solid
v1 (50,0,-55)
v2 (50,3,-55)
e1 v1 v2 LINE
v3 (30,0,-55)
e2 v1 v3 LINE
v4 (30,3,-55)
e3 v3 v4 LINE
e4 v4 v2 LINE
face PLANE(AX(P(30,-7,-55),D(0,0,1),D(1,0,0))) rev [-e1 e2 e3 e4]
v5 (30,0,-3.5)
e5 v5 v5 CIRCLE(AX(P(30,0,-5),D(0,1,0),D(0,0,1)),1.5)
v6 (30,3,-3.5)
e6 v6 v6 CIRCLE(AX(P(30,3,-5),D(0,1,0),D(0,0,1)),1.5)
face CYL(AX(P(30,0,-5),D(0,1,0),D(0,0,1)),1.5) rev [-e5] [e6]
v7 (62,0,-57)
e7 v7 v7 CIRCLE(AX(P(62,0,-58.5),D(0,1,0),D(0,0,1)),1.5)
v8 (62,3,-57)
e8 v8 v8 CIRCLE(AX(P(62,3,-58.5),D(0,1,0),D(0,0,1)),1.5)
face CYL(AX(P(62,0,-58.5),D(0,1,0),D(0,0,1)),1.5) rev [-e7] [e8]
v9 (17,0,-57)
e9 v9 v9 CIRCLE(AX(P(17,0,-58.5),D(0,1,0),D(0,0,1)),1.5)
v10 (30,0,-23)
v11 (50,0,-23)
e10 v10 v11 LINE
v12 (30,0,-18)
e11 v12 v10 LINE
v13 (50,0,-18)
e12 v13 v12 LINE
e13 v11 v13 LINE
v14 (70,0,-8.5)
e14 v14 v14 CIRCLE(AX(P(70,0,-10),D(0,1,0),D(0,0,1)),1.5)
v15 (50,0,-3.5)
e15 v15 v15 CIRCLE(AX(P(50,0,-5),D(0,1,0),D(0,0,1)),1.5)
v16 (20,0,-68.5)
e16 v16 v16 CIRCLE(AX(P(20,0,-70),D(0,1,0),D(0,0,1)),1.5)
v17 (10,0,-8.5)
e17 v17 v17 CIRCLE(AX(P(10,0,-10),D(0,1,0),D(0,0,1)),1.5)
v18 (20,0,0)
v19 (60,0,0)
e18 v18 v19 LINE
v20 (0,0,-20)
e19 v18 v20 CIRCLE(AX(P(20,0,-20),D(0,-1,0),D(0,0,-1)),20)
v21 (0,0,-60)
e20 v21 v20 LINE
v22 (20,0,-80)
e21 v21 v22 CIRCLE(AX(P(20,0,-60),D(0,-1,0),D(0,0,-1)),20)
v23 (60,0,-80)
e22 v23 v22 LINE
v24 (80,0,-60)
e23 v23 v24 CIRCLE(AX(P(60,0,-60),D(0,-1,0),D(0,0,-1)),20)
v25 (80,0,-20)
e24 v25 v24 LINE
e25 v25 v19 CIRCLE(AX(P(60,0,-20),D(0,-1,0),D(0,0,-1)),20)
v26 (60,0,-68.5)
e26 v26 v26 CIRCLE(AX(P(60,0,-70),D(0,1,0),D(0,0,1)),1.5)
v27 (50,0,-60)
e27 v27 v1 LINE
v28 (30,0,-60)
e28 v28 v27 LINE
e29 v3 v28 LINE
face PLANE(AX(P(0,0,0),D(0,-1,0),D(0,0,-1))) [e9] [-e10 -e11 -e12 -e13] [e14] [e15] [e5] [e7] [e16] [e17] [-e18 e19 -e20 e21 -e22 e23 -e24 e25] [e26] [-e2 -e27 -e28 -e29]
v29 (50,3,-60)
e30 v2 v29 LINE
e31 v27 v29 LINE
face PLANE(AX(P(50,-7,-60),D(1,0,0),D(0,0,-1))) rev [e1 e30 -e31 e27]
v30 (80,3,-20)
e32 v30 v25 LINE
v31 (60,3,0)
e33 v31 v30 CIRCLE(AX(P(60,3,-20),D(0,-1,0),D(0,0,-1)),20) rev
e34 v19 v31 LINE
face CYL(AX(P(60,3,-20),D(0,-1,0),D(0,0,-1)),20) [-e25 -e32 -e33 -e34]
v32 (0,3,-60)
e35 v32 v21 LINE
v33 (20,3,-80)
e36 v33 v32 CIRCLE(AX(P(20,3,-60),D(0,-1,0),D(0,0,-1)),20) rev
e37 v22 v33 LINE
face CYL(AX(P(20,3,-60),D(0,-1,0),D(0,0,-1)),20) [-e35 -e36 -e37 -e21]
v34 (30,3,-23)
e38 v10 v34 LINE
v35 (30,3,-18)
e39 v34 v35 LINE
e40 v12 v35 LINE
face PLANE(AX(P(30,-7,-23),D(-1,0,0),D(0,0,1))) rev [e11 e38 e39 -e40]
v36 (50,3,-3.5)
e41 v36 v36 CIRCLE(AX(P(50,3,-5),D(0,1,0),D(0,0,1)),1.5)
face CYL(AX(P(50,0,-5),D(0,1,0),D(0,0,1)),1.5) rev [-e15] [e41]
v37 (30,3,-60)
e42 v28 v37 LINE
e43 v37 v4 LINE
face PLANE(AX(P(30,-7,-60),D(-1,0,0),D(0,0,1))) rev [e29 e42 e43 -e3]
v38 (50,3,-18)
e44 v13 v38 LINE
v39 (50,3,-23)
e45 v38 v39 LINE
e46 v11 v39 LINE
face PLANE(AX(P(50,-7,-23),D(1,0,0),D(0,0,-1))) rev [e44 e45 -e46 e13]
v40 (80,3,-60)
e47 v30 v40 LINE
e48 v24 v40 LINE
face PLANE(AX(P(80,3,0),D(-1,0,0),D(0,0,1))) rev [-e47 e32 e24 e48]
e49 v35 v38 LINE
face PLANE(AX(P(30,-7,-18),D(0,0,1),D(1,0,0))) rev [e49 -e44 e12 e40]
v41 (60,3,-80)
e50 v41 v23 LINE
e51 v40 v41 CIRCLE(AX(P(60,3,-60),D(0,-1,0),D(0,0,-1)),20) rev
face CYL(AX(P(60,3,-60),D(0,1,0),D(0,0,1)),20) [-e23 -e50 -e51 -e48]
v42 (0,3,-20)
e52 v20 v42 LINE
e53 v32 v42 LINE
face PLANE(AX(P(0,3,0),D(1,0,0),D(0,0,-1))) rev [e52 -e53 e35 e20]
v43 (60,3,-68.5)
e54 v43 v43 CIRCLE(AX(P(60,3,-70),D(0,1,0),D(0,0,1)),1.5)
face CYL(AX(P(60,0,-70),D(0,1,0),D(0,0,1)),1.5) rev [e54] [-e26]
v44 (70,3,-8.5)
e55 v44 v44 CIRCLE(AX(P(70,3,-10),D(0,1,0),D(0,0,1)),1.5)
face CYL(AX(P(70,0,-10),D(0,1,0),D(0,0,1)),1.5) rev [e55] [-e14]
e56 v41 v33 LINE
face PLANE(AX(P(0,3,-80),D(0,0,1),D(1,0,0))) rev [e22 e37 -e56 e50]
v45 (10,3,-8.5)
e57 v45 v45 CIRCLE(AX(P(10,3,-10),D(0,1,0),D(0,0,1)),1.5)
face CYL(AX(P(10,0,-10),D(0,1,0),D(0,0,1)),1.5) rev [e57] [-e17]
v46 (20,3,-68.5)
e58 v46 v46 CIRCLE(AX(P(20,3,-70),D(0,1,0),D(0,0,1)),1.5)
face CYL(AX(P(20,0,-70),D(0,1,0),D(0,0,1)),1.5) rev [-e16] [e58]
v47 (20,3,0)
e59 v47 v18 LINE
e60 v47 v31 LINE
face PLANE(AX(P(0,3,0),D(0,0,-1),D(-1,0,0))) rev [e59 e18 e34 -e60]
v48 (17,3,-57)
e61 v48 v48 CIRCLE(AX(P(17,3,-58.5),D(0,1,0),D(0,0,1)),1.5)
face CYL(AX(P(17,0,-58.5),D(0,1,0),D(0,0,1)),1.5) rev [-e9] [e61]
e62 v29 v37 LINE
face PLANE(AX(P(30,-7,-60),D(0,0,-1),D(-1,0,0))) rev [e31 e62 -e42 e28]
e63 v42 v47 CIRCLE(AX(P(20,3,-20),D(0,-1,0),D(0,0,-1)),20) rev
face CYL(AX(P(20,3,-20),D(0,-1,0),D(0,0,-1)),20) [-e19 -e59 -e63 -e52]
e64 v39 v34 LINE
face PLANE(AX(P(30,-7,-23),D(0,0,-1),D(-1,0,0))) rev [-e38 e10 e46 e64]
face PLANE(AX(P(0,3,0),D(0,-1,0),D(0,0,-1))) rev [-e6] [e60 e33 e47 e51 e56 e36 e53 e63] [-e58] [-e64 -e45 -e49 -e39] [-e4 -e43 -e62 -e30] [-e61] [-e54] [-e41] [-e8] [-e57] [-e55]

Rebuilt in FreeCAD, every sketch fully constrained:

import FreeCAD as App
import Part
import Sketcher


def edges_at(feature, points):
    """Names of the edges that pass closest to the given points."""
    edges = feature.Shape.Edges
    near = lambda p: min(range(len(edges)), key=lambda i: edges[i].distToShape(Part.Vertex(*p))[0])
    return sorted({f"Edge{near(p) + 1}" for p in points})


def add_polygon(sketch, points):
    """Adds a closed chain of lines whose ends are joined by coincident constraints."""
    first, n = sketch.GeometryCount, len(points)
    for a, b in zip(points, points[1:] + points[:1]):
        sketch.addGeometry(Part.LineSegment(App.Vector(*a, 0), App.Vector(*b, 0)), False)
    for i in range(n):
        sketch.addConstraint(Sketcher.Constraint("Coincident", first + i, 2, first + (i + 1) % n, 1))

doc = App.newDocument("Part")
body = doc.addObject("PartDesign::Body", "Body")

sketch1 = body.newObject("Sketcher::SketchObject", "Sketch")
sketch1.AttachmentSupport = (doc.getObject("XZ_Plane"), [""])
sketch1.MapMode = "FlatFace"
add_polygon(sketch1, [(0, -80), (0, 0), (80, 0), (80, -80)])
sketch1.addConstraint([
    Sketcher.Constraint("Vertical", 0),
    Sketcher.Constraint("Horizontal", 1),
    Sketcher.Constraint("Vertical", 2),
    Sketcher.Constraint("Horizontal", 3),
    Sketcher.Constraint("Coincident", 0, 2, -1, 1),
    Sketcher.Constraint("Equal", 3, 0),
    Sketcher.Constraint("DistanceX", 1, 1, 1, 2, 80.0),
])
pad1 = body.newObject("PartDesign::Pad", "Pad")
pad1.Profile = sketch1
pad1.Length = 3
pad1.Reversed = True
doc.recompute()

fillet = body.newObject("PartDesign::Fillet", "Fillet")
fillet.Base = (pad1, edges_at(pad1, [(0, 1.5, -80)]))
fillet.Radius = 20
doc.recompute()

fillet2 = body.newObject("PartDesign::Fillet", "Fillet001")
fillet2.Base = (fillet, edges_at(fillet, [(80, 1.5, -80)]))
fillet2.Radius = 20
doc.recompute()

fillet3 = body.newObject("PartDesign::Fillet", "Fillet002")
fillet3.Base = (fillet2, edges_at(fillet2, [(80, 1.5, 0)]))
fillet3.Radius = 20
doc.recompute()

fillet4 = body.newObject("PartDesign::Fillet", "Fillet003")
fillet4.Base = (fillet3, edges_at(fillet3, [(0, 1.5, 0)]))
fillet4.Radius = 20

sketch2 = body.newObject("Sketcher::SketchObject", "Sketch001")
sketch2.AttachmentSupport = (doc.getObject("XZ_Plane"), [""])
sketch2.MapMode = "FlatFace"
sketch2.AttachmentOffset = App.Placement(App.Vector(0, 0, -3), App.Rotation())
sketch2.addGeometry([
    Part.Circle(App.Vector(17, -58.5, 0), App.Vector(0, 0, 1), 1.5),
    Part.Circle(App.Vector(62, -58.5, 0), App.Vector(0, 0, 1), 1.5),
], False)
sketch2.addConstraint([
    Sketcher.Constraint("Equal", 0, 1),
    Sketcher.Constraint("Horizontal", 0, 3, 1, 3),
    Sketcher.Constraint("Diameter", 0, 3.0),
    Sketcher.Constraint("DistanceX", -1, 1, 0, 3, 17.0),
    Sketcher.Constraint("DistanceX", -1, 1, 1, 3, 62.0),
    Sketcher.Constraint("DistanceY", 0, 3, -1, 1, 58.5),
])
pocket1 = body.newObject("PartDesign::Pocket", "Pocket")
pocket1.Profile = sketch2
pocket1.Length = 3
pocket1.Reversed = True

sketch3 = body.newObject("Sketcher::SketchObject", "Sketch002")
sketch3.AttachmentSupport = (doc.getObject("XZ_Plane"), [""])
sketch3.MapMode = "FlatFace"
sketch3.AttachmentOffset = App.Placement(App.Vector(0, 0, -3), App.Rotation())
sketch3.addGeometry([
    Part.Circle(App.Vector(70, -10, 0), App.Vector(0, 0, 1), 1.5),
    Part.Circle(App.Vector(10, -10, 0), App.Vector(0, 0, 1), 1.5),
], False)
sketch3.addConstraint([
    Sketcher.Constraint("Equal", 0, 1),
    Sketcher.Constraint("Horizontal", 0, 3, 1, 3),
    Sketcher.Constraint("Diameter", 0, 3.0),
    Sketcher.Constraint("DistanceX", -1, 1, 0, 3, 70.0),
    Sketcher.Constraint("DistanceY", 0, 3, -1, 1, 10.0),
    Sketcher.Constraint("DistanceX", -1, 1, 1, 3, 10.0),
])
pocket2 = body.newObject("PartDesign::Pocket", "Pocket001")
pocket2.Profile = sketch3
pocket2.Length = 3
pocket2.Reversed = True

sketch4 = body.newObject("Sketcher::SketchObject", "Sketch003")
sketch4.AttachmentSupport = (doc.getObject("XZ_Plane"), [""])
sketch4.MapMode = "FlatFace"
sketch4.AttachmentOffset = App.Placement(App.Vector(0, 0, -3), App.Rotation())
sketch4.addGeometry([
    Part.Circle(App.Vector(30, -5, 0), App.Vector(0, 0, 1), 1.5),
    Part.Circle(App.Vector(50, -5, 0), App.Vector(0, 0, 1), 1.5),
], False)
sketch4.addConstraint([
    Sketcher.Constraint("Equal", 0, 1),
    Sketcher.Constraint("Horizontal", 0, 3, 1, 3),
    Sketcher.Constraint("Diameter", 0, 3.0),
    Sketcher.Constraint("DistanceX", -1, 1, 0, 3, 30.0),
    Sketcher.Constraint("DistanceY", 0, 3, -1, 1, 5.0),
    Sketcher.Constraint("DistanceX", -1, 1, 1, 3, 50.0),
])
pocket3 = body.newObject("PartDesign::Pocket", "Pocket002")
pocket3.Profile = sketch4
pocket3.Length = 3
pocket3.Reversed = True

sketch5 = body.newObject("Sketcher::SketchObject", "Sketch004")
sketch5.AttachmentSupport = (doc.getObject("XZ_Plane"), [""])
sketch5.MapMode = "FlatFace"
sketch5.AttachmentOffset = App.Placement(App.Vector(0, 0, -3), App.Rotation())
sketch5.addGeometry([
    Part.Circle(App.Vector(20, -70, 0), App.Vector(0, 0, 1), 1.5),
    Part.Circle(App.Vector(60, -70, 0), App.Vector(0, 0, 1), 1.5),
], False)
sketch5.addConstraint([
    Sketcher.Constraint("Equal", 0, 1),
    Sketcher.Constraint("Horizontal", 0, 3, 1, 3),
    Sketcher.Constraint("Diameter", 0, 3.0),
    Sketcher.Constraint("DistanceX", -1, 1, 0, 3, 20.0),
    Sketcher.Constraint("DistanceY", 0, 3, -1, 1, 70.0),
    Sketcher.Constraint("DistanceX", -1, 1, 1, 3, 60.0),
])
pocket4 = body.newObject("PartDesign::Pocket", "Pocket003")
pocket4.Profile = sketch5
pocket4.Length = 3
pocket4.Reversed = True

sketch6 = body.newObject("Sketcher::SketchObject", "Sketch005")
sketch6.AttachmentSupport = (doc.getObject("XZ_Plane"), [""])
sketch6.MapMode = "FlatFace"
sketch6.AttachmentOffset = App.Placement(App.Vector(0, 0, -3), App.Rotation())
add_polygon(sketch6, [(30, -60), (30, -55), (50, -55), (50, -60)])
add_polygon(sketch6, [(30, -23), (30, -18), (50, -18), (50, -23)])
sketch6.addConstraint([
    Sketcher.Constraint("Vertical", 0),
    Sketcher.Constraint("Horizontal", 1),
    Sketcher.Constraint("Vertical", 2),
    Sketcher.Constraint("Horizontal", 3),
    Sketcher.Constraint("Vertical", 4),
    Sketcher.Constraint("Horizontal", 5),
    Sketcher.Constraint("Vertical", 6),
    Sketcher.Constraint("Horizontal", 7),
    Sketcher.Constraint("Vertical", 3, 2, 4, 2),
    Sketcher.Constraint("Vertical", 2, 2, 5, 2),
    Sketcher.Constraint("Equal", 2, 4),
    Sketcher.Constraint("DistanceX", 1, 1, 1, 2, 20.0),
    Sketcher.Constraint("DistanceY", 0, 1, 0, 2, 5.0),
    Sketcher.Constraint("DistanceX", -1, 1, 0, 2, 30.0),
    Sketcher.Constraint("DistanceY", 0, 2, -1, 1, 55.0),
    Sketcher.Constraint("DistanceY", 4, 2, -1, 1, 18.0),
])
pocket5 = body.newObject("PartDesign::Pocket", "Pocket004")
pocket5.Profile = sketch6
pocket5.Length = 10
pocket5.Reversed = True

doc.recompute()
